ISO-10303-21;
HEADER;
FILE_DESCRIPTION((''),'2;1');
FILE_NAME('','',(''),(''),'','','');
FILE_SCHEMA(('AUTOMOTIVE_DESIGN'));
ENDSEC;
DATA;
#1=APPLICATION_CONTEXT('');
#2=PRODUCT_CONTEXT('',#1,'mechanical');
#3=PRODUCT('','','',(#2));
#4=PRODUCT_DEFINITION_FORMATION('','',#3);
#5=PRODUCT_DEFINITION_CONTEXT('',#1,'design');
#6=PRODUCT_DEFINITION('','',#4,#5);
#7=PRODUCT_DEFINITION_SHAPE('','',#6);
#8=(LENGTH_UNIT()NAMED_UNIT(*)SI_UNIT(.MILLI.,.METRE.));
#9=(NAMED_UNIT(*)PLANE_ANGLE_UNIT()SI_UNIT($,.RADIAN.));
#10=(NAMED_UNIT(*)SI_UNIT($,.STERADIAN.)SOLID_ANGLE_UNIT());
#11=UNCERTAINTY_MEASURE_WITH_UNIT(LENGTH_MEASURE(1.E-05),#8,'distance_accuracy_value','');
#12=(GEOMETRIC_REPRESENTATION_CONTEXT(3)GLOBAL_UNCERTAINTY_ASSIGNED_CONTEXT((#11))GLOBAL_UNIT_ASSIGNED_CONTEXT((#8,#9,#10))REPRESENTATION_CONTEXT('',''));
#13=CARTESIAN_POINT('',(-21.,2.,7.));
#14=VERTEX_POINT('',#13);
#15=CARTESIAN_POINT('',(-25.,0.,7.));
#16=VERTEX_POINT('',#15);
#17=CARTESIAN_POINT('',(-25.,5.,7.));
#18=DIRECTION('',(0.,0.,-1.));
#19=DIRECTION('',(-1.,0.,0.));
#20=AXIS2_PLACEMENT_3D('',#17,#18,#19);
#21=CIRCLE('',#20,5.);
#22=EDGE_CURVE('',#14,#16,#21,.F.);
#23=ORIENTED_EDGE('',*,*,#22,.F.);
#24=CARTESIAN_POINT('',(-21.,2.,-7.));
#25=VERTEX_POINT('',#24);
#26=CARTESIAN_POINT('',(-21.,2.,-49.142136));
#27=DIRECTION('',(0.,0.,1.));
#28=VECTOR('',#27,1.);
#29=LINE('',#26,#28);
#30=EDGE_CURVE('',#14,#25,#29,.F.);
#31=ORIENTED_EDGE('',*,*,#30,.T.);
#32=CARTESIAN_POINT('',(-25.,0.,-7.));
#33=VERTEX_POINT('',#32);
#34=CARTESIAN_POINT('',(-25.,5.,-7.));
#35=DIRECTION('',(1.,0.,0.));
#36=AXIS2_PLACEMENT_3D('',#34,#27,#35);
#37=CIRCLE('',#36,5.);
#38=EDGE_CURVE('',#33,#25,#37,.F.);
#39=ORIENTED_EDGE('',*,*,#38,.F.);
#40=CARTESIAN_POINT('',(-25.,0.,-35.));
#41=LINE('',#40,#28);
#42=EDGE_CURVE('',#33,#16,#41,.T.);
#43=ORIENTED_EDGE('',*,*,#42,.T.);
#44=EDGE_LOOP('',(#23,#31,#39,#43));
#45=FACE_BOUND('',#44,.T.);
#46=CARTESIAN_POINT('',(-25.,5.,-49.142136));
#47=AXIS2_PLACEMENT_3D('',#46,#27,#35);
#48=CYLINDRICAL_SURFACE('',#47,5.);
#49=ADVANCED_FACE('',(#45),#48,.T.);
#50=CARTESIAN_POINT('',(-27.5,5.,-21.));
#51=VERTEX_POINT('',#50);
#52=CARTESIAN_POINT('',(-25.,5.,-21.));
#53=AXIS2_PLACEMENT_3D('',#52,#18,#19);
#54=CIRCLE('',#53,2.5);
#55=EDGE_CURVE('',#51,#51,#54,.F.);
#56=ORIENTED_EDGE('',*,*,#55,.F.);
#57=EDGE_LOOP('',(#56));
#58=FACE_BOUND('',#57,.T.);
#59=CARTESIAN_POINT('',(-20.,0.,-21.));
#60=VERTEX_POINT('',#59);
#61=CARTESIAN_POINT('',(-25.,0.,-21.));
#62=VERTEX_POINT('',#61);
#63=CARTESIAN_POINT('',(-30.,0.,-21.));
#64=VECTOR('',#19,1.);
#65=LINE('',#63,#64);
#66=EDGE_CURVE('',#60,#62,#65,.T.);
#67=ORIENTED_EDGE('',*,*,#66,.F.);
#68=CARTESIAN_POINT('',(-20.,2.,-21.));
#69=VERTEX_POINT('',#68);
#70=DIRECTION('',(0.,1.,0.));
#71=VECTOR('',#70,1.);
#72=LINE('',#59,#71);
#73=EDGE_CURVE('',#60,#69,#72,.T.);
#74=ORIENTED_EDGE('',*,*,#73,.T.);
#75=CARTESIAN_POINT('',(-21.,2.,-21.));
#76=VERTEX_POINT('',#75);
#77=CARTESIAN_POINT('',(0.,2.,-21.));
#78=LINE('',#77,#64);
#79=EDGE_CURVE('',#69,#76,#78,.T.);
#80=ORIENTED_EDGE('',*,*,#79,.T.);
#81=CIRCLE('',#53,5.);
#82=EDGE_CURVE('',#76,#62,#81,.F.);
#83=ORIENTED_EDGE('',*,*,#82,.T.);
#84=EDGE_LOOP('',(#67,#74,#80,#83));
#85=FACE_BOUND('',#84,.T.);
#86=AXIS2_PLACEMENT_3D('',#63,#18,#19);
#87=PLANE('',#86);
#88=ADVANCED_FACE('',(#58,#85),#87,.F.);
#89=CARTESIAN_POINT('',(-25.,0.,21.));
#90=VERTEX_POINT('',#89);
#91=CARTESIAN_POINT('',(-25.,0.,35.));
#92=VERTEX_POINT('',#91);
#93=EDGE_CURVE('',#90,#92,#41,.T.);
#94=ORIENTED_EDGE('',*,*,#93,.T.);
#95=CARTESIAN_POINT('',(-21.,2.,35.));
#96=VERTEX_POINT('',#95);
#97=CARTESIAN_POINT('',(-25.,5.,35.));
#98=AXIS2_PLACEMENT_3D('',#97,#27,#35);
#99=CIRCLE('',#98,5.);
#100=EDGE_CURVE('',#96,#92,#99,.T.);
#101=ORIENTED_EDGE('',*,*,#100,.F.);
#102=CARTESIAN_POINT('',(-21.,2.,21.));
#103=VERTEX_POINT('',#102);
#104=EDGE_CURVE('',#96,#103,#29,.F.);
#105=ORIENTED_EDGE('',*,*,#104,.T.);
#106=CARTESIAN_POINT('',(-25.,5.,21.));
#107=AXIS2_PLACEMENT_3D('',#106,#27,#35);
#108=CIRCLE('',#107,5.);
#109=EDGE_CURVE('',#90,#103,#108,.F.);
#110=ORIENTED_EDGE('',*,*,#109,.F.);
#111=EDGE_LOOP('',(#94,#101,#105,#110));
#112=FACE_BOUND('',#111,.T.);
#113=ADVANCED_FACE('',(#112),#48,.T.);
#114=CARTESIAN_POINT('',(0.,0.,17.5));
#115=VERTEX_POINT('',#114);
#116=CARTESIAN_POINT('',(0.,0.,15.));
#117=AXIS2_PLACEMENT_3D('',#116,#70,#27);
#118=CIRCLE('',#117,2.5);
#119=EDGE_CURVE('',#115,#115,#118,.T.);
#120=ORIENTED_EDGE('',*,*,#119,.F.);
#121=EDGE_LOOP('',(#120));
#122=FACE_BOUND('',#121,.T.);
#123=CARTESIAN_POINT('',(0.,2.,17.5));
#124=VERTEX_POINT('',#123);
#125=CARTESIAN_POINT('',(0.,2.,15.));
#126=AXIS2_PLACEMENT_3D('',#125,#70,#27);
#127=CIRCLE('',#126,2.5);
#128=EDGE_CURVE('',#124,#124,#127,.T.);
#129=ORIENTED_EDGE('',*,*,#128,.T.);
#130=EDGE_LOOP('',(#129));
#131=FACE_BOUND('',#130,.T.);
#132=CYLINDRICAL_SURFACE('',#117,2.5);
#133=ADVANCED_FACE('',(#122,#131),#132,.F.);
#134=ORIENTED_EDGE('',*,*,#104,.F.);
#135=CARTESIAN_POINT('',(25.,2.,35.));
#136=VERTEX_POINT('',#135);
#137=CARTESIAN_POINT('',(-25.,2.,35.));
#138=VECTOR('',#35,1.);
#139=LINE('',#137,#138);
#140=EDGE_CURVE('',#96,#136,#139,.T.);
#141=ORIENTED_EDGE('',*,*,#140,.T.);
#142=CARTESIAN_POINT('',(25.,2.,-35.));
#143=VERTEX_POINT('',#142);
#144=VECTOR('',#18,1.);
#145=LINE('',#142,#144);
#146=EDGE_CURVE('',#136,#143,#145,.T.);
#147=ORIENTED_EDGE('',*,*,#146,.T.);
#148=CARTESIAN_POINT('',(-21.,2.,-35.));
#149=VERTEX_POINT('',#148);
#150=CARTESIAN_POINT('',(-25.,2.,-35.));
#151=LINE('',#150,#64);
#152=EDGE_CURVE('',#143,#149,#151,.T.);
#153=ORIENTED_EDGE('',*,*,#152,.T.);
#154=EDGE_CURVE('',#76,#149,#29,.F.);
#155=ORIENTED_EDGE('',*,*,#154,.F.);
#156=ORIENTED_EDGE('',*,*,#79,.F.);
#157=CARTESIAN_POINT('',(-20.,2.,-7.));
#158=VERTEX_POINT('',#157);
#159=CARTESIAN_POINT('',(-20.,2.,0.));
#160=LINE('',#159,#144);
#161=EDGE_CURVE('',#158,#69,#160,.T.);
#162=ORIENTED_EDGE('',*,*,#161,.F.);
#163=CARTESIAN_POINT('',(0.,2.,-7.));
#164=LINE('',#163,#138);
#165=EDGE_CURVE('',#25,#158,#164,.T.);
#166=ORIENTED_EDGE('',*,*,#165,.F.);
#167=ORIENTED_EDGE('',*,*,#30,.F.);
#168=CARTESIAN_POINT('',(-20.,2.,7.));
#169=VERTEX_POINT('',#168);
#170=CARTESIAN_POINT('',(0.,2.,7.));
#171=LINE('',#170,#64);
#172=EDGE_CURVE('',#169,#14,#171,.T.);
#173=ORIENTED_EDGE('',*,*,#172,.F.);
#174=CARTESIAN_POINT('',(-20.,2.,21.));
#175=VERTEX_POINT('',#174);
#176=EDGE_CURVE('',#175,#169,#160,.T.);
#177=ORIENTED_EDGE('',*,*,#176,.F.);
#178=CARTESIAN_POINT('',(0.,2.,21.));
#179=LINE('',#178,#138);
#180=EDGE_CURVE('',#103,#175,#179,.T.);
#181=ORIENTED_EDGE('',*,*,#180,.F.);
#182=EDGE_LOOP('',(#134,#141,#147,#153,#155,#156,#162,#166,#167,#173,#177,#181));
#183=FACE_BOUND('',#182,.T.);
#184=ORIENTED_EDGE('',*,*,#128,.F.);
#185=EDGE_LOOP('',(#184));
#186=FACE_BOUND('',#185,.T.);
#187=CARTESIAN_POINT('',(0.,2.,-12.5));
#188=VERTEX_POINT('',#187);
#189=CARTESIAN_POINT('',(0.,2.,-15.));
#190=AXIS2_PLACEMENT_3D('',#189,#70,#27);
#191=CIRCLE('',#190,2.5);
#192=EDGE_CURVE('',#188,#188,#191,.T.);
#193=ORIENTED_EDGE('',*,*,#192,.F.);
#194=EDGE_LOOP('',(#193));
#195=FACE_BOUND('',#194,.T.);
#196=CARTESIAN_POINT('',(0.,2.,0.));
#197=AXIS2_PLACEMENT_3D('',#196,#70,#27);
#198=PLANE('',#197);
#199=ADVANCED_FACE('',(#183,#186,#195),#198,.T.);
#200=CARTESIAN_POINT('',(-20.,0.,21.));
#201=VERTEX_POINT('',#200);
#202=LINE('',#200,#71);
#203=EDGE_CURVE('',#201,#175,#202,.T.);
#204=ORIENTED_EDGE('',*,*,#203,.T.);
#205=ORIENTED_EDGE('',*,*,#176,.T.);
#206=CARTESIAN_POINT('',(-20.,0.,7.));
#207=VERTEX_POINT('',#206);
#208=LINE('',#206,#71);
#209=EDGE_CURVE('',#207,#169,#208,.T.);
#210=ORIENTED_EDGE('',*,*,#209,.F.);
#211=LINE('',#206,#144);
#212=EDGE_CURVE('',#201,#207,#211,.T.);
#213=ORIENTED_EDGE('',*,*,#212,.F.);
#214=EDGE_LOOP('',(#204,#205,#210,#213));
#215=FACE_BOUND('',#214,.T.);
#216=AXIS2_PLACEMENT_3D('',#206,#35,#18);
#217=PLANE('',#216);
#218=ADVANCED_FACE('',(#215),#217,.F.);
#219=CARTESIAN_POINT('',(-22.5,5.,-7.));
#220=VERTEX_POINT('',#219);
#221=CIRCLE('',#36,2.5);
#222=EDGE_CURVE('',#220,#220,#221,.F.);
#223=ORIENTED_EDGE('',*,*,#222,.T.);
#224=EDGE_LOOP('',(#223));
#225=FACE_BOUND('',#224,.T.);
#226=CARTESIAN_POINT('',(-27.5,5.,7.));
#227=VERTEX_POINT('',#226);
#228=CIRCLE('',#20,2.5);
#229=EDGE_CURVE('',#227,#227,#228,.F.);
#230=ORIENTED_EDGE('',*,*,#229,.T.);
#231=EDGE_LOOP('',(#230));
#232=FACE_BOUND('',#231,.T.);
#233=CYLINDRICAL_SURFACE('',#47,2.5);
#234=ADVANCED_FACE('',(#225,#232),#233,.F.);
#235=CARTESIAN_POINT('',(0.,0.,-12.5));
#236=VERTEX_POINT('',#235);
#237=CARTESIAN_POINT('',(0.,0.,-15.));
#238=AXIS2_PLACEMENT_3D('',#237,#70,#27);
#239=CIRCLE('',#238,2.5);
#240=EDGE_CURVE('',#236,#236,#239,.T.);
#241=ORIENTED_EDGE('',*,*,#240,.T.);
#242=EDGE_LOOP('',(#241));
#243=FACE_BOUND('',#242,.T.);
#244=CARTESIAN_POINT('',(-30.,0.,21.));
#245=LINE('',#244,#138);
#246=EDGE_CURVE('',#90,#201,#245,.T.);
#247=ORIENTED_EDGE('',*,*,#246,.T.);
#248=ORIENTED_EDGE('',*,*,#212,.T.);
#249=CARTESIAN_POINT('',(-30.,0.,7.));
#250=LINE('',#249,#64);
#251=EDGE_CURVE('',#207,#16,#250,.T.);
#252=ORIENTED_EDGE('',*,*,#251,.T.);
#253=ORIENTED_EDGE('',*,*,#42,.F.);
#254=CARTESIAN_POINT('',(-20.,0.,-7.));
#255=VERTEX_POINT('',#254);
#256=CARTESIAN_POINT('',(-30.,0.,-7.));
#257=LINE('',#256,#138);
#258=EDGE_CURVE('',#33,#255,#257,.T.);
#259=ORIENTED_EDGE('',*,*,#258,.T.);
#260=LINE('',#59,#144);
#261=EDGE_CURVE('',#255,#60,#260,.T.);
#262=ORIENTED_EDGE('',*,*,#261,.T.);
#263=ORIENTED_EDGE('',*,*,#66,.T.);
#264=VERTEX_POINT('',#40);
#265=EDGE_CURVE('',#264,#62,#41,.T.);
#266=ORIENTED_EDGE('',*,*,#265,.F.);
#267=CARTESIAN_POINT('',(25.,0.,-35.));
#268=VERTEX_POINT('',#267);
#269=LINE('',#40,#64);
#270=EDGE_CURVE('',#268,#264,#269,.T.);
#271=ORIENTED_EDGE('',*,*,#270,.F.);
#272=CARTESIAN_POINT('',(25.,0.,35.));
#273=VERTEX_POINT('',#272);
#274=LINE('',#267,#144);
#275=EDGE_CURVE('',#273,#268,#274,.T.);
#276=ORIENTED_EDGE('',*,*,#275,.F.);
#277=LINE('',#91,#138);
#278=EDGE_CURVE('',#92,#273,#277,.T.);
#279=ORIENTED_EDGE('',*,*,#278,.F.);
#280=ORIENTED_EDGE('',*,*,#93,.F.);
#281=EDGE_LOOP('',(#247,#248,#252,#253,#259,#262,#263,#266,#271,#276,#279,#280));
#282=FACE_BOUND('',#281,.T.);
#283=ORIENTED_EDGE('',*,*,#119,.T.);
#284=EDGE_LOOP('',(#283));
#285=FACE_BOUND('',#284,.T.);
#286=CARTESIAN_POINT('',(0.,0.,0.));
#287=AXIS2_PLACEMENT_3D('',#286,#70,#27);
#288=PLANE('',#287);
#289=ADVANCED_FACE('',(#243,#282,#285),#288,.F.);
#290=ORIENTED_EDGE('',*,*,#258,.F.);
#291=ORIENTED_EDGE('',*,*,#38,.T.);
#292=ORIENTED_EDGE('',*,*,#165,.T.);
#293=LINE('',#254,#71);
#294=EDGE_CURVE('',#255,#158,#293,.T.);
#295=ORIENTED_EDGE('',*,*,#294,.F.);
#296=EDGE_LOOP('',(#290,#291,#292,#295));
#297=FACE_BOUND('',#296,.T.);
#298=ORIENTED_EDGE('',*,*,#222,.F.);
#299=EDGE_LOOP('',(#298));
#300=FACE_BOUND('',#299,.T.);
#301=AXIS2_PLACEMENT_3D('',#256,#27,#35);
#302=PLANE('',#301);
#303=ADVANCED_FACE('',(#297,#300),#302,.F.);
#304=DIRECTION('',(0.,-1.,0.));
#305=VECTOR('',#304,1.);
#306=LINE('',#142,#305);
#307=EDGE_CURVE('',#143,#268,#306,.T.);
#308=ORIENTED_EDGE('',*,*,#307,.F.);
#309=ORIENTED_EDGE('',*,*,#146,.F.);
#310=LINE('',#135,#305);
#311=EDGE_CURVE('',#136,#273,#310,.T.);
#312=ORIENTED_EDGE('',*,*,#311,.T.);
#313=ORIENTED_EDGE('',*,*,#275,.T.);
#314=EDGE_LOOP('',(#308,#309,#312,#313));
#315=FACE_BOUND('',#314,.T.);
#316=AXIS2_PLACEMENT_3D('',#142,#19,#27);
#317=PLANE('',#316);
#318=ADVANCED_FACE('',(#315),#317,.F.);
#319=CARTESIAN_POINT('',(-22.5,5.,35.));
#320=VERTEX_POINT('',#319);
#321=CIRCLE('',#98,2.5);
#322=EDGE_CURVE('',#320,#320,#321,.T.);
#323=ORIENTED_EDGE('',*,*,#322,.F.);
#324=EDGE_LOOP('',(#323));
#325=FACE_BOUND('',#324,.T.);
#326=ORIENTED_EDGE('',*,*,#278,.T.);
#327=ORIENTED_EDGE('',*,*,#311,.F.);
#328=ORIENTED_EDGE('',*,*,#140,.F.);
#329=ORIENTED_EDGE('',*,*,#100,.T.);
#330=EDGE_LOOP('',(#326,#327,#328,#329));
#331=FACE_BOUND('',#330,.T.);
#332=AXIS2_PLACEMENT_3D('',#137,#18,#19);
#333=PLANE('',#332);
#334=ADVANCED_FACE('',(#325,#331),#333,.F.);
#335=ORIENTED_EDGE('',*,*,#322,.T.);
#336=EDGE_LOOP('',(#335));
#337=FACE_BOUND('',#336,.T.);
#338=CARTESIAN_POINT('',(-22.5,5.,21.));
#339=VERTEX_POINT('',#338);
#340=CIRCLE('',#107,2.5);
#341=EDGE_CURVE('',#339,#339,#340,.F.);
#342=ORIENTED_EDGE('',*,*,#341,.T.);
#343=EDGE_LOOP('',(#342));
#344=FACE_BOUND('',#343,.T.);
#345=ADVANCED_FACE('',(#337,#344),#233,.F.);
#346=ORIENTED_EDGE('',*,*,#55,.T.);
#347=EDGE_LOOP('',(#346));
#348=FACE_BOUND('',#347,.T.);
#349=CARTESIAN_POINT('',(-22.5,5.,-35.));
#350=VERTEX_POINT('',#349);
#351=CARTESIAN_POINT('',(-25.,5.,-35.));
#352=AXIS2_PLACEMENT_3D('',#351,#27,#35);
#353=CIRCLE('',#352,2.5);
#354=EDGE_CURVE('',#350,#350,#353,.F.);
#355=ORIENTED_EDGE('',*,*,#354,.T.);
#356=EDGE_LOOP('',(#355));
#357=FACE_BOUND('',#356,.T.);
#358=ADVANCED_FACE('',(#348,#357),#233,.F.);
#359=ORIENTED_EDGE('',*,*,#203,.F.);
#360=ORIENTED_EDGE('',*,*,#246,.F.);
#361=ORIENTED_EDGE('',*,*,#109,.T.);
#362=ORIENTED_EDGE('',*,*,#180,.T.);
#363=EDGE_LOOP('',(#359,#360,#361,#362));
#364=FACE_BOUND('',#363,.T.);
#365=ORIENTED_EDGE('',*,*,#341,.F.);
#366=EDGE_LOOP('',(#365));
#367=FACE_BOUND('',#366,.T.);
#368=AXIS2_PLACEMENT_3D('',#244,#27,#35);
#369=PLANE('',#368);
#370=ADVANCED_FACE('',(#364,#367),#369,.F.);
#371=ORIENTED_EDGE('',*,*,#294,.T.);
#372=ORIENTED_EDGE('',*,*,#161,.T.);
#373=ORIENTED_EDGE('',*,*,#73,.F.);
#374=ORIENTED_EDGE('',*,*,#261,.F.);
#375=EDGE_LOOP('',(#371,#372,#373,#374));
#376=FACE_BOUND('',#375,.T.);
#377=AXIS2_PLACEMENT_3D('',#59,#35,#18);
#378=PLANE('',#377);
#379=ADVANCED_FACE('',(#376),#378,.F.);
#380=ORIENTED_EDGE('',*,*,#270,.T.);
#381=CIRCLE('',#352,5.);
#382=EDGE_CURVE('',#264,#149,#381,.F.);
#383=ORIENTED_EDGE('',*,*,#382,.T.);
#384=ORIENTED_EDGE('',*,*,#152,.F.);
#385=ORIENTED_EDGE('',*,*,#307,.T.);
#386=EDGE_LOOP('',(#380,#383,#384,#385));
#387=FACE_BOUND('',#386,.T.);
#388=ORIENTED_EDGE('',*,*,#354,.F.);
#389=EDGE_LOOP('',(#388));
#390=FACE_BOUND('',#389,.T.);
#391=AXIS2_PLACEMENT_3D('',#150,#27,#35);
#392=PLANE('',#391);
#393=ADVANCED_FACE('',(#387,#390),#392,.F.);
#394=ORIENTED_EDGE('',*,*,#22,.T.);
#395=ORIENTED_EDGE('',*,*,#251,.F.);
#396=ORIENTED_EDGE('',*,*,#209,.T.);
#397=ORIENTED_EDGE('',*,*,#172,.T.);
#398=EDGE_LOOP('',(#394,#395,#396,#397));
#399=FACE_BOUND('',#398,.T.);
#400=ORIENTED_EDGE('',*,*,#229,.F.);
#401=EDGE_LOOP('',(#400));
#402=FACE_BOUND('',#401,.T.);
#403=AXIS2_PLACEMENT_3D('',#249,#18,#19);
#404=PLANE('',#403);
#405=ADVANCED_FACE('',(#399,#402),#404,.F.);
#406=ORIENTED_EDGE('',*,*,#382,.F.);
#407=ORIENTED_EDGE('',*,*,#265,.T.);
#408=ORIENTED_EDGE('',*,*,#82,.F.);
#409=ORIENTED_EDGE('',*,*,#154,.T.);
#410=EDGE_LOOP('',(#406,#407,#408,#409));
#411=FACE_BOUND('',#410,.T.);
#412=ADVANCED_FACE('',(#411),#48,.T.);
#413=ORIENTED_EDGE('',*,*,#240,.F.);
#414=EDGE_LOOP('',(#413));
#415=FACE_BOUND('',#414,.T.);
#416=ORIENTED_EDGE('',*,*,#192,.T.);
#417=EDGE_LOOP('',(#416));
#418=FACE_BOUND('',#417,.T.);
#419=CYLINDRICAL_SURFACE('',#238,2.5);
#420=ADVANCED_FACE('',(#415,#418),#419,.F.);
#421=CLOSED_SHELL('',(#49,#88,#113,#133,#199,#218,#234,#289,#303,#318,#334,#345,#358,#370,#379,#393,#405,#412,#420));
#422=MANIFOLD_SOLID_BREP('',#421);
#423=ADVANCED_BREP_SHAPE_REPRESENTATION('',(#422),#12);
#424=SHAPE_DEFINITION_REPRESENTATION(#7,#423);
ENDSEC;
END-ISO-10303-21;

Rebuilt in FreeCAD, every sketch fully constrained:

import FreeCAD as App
import Part
import Sketcher

V = App.Vector


def add_polygon(sketch, points):
    """Adds a closed chain of lines whose ends are joined by coincident constraints."""
    first, n = sketch.GeometryCount, len(points)
    for a, b in zip(points, points[1:] + points[:1]):
        sketch.addGeometry(Part.LineSegment(App.Vector(*a, 0), App.Vector(*b, 0)), False)
    for i in range(n):
        sketch.addConstraint(Sketcher.Constraint("Coincident", first + i, 2, first + (i + 1) % n, 1))

doc = App.newDocument("Part")
params = doc.addObject("Spreadsheet::Sheet", "Params")
for row, (alias, value) in enumerate([
    ("sketch1_width", "50 mm"),
    ("sketch1_height", "70 mm"),
    ("pad1_length", "2 mm"),
    ("sketch2_diameter", "10 mm"),
    ("sketch2_diameter2", "5 mm"),
    ("pad2_length", "70 mm"),
    ("sketch3_diameter", "5 mm"),
    ("sketch4_width", "10 mm"),
    ("sketch4_height", "14 mm"),
], start=1):
    params.set(f"A{row}", alias)
    params.set(f"B{row}", "=" + value)
    params.setAlias(f"B{row}", alias)

body = doc.addObject("PartDesign::Body", "Body")

sketch1 = body.newObject("Sketcher::SketchObject", "Sketch")
sketch1.AttachmentSupport = (doc.getObject("XZ_Plane"), [""])
sketch1.MapMode = "FlatFace"
add_polygon(sketch1, [(-25, -35), (-25, 35), (25, 35), (25, -35)])
sketch1.addConstraint(Sketcher.Constraint("Vertical", 0))
sketch1.addConstraint(Sketcher.Constraint("Horizontal", 1))
sketch1.addConstraint(Sketcher.Constraint("Vertical", 2))
sketch1.addConstraint(Sketcher.Constraint("Horizontal", 3))
sketch1.addConstraint(Sketcher.Constraint("Symmetric", 0, 2, 2, 2, -1, 1))
sketch1.addConstraint(Sketcher.Constraint("DistanceX", 1, 1, 1, 2, 50.0))
sketch1.addConstraint(Sketcher.Constraint("DistanceY", 0, 1, 0, 2, 70.0))
sketch1.setExpression("Constraints[9]", "Params.sketch1_width")
sketch1.setExpression("Constraints[10]", "Params.sketch1_height")
pad1 = body.newObject("PartDesign::Pad", "Pad")
pad1.Profile = sketch1
pad1.setExpression("Length", "Params.pad1_length")
pad1.Reversed = True

sketch2 = body.newObject("Sketcher::SketchObject", "Sketch001")
sketch2.AttachmentSupport = (doc.getObject("XY_Plane"), [""])
sketch2.MapMode = "FlatFace"
sketch2.AttachmentOffset = App.Placement(V(0, 0, 35), App.Rotation())
sketch2.addGeometry(Part.Circle(V(-25, 5, 0), V(0, 0, 1), 5), False)
sketch2.addGeometry(Part.Circle(V(-25, 5, 0), V(0, 0, 1), 2.5), False)
sketch2.addConstraint(Sketcher.Constraint("Coincident", 1, 3, 0, 3))
sketch2.addConstraint(Sketcher.Constraint("Diameter", 0, 10.0))
sketch2.addConstraint(Sketcher.Constraint("Diameter", 1, 5.0))
sketch2.addConstraint(Sketcher.Constraint("DistanceX", 0, 3, -1, 1, 25.0))
sketch2.addConstraint(Sketcher.Constraint("DistanceY", -1, 1, 0, 3, 5.0))
sketch2.setExpression("Constraints[1]", "Params.sketch2_diameter")
sketch2.setExpression("Constraints[2]", "Params.sketch2_diameter2")
pad2 = body.newObject("PartDesign::Pad", "Pad001")
pad2.Profile = sketch2
pad2.setExpression("Length", "Params.pad2_length")
pad2.Reversed = True

sketch3 = body.newObject("Sketcher::SketchObject", "Sketch002")
sketch3.AttachmentSupport = (doc.getObject("XZ_Plane"), [""])
sketch3.MapMode = "FlatFace"
sketch3.AttachmentOffset = App.Placement(V(0, 0, -2), App.Rotation())
sketch3.addGeometry(Part.Circle(V(0, -15, 0), V(0, 0, 1), 2.5), False)
sketch3.addGeometry(Part.Circle(V(0, 15, 0), V(0, 0, 1), 2.5), False)
sketch3.addConstraint(Sketcher.Constraint("Equal", 0, 1))
sketch3.addConstraint(Sketcher.Constraint("Symmetric", 0, 3, 1, 3, -1, 1))
sketch3.addConstraint(Sketcher.Constraint("PointOnObject", 0, 3, -2))
sketch3.addConstraint(Sketcher.Constraint("Diameter", 0, 5.0))
sketch3.addConstraint(Sketcher.Constraint("DistanceY", 0, 3, -1, 1, 15.0))
sketch3.setExpression("Constraints[3]", "Params.sketch3_diameter")
pocket1 = body.newObject("PartDesign::Pocket", "Pocket")
pocket1.Profile = sketch3
pocket1.Type = "ThroughAll"
pocket1.Reversed = True

sketch4 = body.newObject("Sketcher::SketchObject", "Sketch003")
sketch4.AttachmentSupport = (doc.getObject("XZ_Plane"), [""])
sketch4.MapMode = "FlatFace"
sketch4.AttachmentOffset = App.Placement(V(0, 0, -2), App.Rotation())
add_polygon(sketch4, [(-30, 7), (-30, 21), (-20, 21), (-20, 7)])
add_polygon(sketch4, [(-30, -21), (-30, -7), (-20, -7), (-20, -21)])
sketch4.addConstraint(Sketcher.Constraint("Vertical", 0))
sketch4.addConstraint(Sketcher.Constraint("Horizontal", 1))
sketch4.addConstraint(Sketcher.Constraint("Vertical", 2))
sketch4.addConstraint(Sketcher.Constraint("Horizontal", 3))
sketch4.addConstraint(Sketcher.Constraint("Vertical", 4))
sketch4.addConstraint(Sketcher.Constraint("Horizontal", 5))
sketch4.addConstraint(Sketcher.Constraint("Vertical", 6))
sketch4.addConstraint(Sketcher.Constraint("Horizontal", 7))
sketch4.addConstraint(Sketcher.Constraint("Symmetric", 3, 2, 4, 2, -1))
sketch4.addConstraint(Sketcher.Constraint("Symmetric", 1, 2, 6, 2, -1))
sketch4.addConstraint(Sketcher.Constraint("DistanceX", 1, 1, 1, 2, 10.0))
sketch4.addConstraint(Sketcher.Constraint("DistanceY", 0, 1, 0, 2, 14.0))
sketch4.addConstraint(Sketcher.Constraint("DistanceX", 0, 2, -1, 1, 30.0))
sketch4.addConstraint(Sketcher.Constraint("DistanceY", -1, 1, 0, 2, 21.0))
sketch4.setExpression("Constraints[18]", "Params.sketch4_width")
sketch4.setExpression("Constraints[19]", "Params.sketch4_height")
pocket2 = body.newObject("PartDesign::Pocket", "Pocket001")
pocket2.Profile = sketch4
pocket2.Type = "ThroughAll"
pocket2.Midplane = True

doc.recompute()
